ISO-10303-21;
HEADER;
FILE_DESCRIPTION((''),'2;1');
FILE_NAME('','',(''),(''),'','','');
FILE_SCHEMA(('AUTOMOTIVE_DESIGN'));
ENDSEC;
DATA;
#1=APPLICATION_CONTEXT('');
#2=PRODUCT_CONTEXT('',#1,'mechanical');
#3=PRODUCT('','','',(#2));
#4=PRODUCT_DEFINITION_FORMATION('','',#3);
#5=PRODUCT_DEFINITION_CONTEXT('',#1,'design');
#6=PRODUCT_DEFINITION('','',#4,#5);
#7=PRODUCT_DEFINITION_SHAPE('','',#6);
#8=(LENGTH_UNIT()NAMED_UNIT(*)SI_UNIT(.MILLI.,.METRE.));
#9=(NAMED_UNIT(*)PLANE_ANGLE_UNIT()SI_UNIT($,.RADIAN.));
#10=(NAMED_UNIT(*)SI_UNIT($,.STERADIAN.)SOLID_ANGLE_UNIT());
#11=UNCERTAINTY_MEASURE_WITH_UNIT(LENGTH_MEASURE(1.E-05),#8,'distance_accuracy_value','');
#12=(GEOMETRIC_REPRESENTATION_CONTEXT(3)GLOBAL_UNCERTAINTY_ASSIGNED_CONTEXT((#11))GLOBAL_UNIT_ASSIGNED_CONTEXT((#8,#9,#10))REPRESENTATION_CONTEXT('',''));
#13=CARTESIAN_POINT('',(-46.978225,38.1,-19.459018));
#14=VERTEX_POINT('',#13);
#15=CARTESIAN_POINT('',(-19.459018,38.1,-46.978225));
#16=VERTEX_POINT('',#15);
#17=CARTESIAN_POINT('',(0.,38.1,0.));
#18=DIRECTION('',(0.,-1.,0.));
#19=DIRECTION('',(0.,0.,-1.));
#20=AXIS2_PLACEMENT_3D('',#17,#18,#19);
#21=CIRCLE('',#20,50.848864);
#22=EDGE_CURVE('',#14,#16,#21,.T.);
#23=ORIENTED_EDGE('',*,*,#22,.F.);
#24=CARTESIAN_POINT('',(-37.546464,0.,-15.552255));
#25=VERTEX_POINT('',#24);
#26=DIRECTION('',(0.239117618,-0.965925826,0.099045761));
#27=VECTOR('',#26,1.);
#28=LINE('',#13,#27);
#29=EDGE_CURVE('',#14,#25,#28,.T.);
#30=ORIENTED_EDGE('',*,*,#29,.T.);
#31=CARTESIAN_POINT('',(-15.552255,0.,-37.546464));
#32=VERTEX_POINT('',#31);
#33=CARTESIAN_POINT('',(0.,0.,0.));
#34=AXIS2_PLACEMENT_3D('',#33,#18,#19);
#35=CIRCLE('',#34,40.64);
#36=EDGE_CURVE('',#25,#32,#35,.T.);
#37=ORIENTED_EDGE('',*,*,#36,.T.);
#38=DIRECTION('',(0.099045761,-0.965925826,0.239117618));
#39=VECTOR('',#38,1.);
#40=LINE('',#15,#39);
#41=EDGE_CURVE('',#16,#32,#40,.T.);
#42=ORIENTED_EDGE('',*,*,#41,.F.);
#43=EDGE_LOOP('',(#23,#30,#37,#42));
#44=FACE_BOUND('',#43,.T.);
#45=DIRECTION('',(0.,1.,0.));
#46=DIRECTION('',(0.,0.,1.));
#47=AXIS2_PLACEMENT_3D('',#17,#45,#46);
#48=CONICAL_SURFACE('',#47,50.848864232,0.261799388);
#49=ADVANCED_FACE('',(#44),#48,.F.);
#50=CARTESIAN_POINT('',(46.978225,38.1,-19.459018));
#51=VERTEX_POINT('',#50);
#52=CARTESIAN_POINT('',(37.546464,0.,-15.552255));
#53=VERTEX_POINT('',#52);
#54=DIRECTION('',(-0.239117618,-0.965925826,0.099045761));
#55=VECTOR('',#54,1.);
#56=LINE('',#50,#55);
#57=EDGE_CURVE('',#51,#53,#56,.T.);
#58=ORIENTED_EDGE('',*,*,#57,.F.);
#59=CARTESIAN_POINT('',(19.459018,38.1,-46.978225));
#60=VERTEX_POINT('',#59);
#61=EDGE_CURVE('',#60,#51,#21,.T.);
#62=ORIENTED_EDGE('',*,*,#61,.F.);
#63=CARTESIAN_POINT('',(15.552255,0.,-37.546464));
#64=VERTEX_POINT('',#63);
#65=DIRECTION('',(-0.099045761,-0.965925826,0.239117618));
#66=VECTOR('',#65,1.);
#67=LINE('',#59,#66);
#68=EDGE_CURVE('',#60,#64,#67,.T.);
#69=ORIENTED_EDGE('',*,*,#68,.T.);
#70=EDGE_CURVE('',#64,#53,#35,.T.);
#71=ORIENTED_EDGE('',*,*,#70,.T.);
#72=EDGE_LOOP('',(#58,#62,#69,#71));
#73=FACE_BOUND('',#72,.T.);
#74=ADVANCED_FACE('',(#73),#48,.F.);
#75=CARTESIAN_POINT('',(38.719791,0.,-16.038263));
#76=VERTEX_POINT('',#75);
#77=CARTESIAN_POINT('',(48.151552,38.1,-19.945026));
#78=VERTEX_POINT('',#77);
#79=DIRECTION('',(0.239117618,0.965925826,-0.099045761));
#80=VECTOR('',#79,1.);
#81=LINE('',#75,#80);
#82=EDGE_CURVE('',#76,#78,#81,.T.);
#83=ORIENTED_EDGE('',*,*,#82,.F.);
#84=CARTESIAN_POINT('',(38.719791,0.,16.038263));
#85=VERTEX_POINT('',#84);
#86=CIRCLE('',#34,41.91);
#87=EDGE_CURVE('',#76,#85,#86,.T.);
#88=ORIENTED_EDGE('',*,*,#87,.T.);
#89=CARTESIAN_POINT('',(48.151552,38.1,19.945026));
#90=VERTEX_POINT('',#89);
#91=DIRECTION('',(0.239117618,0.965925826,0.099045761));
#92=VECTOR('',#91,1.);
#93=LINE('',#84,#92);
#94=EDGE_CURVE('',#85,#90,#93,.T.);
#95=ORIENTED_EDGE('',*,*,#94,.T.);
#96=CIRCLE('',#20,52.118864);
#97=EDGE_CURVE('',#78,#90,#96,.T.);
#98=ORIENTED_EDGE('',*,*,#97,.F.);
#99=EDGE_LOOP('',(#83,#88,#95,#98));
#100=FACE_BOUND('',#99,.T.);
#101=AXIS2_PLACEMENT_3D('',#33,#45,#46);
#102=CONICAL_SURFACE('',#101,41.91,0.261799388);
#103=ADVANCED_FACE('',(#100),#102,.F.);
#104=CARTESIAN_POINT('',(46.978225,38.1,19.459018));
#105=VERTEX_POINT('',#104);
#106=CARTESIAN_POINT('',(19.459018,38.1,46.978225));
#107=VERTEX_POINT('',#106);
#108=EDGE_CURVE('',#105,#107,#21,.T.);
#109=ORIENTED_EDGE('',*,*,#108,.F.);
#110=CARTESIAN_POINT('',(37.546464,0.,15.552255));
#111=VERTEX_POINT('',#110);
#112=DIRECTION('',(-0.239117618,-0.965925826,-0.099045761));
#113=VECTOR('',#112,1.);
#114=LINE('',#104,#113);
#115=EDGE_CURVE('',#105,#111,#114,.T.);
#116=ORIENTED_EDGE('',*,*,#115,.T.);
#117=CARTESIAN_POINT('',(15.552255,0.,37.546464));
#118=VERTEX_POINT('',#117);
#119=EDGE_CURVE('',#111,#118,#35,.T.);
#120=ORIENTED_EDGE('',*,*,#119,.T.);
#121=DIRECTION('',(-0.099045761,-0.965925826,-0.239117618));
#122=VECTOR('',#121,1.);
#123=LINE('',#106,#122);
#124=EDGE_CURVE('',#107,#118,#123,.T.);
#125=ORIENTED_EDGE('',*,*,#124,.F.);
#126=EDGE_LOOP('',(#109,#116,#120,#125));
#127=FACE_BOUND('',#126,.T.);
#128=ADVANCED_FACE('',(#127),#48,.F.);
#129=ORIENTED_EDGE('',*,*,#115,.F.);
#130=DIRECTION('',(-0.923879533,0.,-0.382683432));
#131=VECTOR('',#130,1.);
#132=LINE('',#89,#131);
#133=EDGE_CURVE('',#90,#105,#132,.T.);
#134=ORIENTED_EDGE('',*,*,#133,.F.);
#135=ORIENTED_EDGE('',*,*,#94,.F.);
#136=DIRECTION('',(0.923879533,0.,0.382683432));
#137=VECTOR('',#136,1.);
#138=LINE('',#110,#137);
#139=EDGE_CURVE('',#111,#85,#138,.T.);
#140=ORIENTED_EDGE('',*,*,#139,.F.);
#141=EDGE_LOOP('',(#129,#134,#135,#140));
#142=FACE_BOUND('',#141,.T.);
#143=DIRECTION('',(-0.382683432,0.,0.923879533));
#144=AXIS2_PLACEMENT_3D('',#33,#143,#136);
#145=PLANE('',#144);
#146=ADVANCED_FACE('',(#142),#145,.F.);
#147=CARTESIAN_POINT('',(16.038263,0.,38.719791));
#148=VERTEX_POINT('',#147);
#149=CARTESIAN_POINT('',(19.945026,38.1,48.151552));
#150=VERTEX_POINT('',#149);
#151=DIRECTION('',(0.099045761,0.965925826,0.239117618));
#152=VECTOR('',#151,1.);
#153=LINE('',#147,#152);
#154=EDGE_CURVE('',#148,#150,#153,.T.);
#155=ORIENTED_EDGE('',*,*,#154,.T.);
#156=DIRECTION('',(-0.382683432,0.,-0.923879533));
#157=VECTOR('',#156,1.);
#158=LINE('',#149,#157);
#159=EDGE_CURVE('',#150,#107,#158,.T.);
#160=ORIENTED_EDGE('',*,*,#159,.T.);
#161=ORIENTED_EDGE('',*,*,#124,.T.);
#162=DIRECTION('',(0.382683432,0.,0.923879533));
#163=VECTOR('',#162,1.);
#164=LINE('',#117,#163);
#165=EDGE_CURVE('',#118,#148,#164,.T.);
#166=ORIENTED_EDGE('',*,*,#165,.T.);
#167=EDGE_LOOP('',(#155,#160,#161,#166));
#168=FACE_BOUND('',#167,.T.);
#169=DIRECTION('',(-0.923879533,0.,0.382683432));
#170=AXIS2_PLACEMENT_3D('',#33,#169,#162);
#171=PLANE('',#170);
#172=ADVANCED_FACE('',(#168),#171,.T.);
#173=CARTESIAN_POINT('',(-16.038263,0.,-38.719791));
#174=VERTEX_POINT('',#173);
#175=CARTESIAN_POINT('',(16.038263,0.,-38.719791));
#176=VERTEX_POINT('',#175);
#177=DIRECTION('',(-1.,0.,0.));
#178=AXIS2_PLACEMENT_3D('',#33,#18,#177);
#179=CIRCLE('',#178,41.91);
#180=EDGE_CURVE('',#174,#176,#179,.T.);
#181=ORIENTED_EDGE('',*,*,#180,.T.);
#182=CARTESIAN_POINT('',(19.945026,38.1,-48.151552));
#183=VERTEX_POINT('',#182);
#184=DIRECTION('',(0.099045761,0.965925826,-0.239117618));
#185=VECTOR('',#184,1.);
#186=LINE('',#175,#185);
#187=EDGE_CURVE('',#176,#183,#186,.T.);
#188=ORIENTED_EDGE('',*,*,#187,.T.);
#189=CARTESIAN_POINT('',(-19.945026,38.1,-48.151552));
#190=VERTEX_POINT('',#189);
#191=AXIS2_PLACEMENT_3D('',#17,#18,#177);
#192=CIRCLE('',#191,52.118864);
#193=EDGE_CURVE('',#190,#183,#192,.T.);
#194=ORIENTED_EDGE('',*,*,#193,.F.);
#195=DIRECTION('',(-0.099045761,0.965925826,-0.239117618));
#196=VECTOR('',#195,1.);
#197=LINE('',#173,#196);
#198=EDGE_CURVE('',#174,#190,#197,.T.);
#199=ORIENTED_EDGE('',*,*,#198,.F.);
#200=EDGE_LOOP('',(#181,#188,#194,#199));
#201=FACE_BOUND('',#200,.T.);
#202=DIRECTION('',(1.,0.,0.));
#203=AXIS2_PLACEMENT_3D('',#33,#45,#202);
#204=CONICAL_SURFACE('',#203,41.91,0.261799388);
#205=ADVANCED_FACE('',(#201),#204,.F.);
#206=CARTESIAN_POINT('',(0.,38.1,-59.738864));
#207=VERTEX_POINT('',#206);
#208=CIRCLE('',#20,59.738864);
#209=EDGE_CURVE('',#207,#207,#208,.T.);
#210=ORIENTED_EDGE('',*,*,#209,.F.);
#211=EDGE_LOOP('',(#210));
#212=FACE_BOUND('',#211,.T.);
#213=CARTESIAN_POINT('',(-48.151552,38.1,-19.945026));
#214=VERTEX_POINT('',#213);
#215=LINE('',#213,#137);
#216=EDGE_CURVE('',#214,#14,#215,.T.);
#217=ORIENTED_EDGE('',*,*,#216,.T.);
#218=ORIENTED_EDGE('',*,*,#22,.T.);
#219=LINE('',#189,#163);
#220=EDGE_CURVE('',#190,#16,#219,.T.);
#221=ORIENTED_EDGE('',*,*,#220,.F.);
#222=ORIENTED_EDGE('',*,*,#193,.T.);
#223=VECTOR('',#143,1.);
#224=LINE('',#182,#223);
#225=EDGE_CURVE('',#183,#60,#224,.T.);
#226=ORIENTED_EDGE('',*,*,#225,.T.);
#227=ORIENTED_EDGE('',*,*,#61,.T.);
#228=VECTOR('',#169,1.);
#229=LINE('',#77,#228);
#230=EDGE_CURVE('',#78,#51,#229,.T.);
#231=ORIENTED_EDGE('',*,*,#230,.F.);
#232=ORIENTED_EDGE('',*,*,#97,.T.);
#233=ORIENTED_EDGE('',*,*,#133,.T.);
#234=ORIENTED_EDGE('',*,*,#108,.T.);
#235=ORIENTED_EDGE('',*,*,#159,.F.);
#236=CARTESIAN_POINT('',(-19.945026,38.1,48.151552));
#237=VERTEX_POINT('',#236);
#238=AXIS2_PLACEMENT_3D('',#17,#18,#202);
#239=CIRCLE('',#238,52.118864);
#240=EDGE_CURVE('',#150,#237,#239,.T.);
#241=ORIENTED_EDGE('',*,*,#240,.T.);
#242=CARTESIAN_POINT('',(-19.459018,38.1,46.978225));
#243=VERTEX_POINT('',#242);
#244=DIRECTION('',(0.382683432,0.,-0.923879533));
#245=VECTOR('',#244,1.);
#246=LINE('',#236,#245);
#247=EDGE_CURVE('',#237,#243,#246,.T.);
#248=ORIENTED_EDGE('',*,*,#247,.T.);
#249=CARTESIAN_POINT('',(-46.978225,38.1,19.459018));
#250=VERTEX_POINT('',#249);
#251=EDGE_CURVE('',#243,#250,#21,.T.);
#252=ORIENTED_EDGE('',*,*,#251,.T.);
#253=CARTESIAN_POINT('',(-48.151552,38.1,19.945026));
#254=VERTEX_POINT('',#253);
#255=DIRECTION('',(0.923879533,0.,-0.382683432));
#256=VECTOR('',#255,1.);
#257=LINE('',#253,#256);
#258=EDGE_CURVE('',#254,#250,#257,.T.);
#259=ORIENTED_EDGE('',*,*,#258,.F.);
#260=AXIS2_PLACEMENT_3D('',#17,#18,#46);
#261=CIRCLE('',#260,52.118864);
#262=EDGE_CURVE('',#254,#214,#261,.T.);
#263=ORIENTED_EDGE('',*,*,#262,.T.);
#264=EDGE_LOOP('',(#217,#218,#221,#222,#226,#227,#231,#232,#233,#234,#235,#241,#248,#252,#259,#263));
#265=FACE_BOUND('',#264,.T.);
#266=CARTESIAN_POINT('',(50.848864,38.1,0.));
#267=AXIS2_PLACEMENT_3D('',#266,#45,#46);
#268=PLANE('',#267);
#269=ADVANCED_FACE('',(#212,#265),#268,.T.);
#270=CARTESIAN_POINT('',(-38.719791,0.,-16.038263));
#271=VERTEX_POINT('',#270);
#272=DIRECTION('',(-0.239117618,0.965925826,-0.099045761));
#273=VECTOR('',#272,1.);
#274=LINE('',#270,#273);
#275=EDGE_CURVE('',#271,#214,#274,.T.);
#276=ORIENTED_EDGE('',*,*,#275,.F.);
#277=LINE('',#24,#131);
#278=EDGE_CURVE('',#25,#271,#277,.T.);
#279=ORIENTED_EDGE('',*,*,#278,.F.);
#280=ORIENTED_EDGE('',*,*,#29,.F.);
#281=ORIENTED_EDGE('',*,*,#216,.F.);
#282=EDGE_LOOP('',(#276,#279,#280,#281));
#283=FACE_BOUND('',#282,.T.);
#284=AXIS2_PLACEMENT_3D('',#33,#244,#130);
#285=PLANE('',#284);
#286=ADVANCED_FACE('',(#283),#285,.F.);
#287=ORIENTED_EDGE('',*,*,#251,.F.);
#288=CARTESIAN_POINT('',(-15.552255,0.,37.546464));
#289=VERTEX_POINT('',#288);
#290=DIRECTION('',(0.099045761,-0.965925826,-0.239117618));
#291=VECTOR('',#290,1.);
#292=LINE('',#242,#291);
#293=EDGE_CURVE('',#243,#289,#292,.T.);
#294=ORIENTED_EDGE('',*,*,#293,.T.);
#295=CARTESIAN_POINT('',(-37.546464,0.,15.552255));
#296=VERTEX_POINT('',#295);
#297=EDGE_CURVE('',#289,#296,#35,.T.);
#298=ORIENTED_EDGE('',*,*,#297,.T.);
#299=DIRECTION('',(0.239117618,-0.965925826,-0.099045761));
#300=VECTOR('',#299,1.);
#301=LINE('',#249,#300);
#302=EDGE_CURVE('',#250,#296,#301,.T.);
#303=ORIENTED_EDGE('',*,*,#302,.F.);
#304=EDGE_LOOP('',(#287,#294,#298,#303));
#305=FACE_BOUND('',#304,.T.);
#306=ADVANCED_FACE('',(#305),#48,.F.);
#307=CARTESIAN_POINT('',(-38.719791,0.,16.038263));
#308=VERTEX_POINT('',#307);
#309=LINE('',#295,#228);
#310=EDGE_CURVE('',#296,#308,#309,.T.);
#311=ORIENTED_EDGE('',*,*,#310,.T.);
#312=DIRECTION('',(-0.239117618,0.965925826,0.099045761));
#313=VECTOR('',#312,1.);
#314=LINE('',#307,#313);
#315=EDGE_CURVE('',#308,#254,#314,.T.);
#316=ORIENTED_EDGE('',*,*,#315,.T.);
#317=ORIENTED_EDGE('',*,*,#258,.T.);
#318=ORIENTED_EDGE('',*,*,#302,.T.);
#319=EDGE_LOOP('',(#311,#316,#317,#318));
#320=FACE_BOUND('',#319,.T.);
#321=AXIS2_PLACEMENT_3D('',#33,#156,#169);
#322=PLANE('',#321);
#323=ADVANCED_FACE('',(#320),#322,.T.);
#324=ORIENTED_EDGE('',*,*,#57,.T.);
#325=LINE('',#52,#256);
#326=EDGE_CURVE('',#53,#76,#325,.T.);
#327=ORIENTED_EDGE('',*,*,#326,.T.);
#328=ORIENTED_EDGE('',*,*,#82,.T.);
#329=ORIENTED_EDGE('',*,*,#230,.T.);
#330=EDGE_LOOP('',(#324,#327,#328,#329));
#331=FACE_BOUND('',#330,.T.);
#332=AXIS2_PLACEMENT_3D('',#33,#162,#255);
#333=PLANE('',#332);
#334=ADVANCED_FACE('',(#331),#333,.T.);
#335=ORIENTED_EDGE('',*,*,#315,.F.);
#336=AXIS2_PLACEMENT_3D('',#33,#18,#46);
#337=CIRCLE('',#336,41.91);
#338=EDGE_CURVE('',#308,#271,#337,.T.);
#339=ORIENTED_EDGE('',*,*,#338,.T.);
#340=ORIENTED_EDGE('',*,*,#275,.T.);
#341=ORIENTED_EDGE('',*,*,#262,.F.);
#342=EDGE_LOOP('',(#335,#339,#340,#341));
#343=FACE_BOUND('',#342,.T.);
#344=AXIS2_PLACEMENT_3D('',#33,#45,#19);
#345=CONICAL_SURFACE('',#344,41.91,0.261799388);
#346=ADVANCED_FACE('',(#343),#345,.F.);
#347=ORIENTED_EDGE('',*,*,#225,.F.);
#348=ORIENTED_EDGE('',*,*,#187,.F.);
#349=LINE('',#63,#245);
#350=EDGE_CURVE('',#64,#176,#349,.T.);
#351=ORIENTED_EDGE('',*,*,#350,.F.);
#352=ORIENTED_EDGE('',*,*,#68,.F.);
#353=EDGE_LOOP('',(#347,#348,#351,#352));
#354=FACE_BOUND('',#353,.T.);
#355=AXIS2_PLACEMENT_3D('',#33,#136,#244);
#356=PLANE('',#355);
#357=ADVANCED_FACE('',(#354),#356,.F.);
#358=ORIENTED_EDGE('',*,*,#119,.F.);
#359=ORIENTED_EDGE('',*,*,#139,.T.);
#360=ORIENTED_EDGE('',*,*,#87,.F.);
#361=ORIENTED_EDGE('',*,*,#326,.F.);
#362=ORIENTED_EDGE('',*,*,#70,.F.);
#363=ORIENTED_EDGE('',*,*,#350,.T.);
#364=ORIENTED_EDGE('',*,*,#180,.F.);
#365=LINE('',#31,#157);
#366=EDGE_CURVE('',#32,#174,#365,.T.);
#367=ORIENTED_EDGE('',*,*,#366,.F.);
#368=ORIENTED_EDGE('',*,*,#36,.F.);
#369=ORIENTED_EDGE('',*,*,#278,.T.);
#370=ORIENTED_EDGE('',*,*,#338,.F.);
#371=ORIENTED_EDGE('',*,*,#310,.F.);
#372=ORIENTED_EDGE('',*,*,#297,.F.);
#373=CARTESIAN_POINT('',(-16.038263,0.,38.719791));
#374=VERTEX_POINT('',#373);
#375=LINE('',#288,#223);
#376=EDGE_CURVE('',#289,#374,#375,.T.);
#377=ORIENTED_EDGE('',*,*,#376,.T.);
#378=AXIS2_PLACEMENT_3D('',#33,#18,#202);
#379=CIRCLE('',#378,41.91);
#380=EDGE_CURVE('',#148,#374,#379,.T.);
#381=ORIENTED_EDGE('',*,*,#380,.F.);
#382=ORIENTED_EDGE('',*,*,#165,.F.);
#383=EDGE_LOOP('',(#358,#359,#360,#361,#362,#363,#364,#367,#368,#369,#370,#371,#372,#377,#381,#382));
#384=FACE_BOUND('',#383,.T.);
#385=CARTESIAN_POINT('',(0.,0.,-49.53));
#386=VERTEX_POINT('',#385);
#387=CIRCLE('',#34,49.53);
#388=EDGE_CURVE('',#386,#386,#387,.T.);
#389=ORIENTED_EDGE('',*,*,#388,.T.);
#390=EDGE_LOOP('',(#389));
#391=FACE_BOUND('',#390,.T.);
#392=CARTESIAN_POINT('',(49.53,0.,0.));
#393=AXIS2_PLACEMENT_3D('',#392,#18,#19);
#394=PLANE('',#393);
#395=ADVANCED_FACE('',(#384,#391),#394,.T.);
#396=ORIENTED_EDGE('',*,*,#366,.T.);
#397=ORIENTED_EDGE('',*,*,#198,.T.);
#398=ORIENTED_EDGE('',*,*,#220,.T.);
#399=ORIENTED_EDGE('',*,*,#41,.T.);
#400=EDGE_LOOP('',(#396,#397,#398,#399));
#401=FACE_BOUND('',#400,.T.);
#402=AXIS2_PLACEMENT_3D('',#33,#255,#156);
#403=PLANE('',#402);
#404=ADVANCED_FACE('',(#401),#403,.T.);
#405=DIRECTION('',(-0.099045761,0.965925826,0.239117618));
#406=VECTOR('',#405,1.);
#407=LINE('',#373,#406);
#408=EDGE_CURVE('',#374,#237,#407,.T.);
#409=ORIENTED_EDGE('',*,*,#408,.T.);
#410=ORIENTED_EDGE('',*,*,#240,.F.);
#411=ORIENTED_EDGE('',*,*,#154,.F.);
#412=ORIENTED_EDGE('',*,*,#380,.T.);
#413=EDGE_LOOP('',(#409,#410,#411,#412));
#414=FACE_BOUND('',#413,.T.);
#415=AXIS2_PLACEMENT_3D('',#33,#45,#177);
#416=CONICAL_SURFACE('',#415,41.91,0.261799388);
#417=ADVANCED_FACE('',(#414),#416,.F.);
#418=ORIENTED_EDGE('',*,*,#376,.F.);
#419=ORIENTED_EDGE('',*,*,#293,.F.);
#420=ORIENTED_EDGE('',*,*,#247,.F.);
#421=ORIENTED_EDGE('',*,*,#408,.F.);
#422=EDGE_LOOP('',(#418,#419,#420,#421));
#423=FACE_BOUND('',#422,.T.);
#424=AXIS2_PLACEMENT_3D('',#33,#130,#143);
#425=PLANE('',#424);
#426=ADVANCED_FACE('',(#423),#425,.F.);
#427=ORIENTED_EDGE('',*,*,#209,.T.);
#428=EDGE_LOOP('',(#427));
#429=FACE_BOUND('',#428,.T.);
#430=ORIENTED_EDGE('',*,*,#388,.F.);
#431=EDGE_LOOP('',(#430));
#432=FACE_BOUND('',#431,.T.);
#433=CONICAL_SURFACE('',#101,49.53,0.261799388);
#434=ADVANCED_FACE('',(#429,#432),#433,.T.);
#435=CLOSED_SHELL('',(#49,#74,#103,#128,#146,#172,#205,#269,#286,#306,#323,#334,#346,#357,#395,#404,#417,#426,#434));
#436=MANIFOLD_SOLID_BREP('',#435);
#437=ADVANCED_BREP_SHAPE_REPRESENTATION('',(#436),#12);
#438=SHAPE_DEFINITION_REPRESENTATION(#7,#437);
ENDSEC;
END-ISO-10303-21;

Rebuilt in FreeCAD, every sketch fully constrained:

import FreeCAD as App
import Part
import Sketcher
from FreeCAD import Vector
Q = App.Units.Quantity

doc = App.newDocument("Part")
body = doc.addObject("PartDesign::Body", "Body")

# Sketch on XY plane
sketch1 = doc.addObject("Sketcher::SketchObject", "Sketch")
body.addObject(sketch1)
sketch1.AttachmentSupport = (doc.XY_Plane, [""])
sketch1.MapMode = "FlatFace"
sketch1.addGeometry(Part.LineSegment(Vector(50.848864, 38.1, 0), Vector(40.64, 0, 0)), False)
sketch1.addGeometry(Part.LineSegment(Vector(40.64, 0, 0), Vector(49.53, 0, 0)), False)
sketch1.addGeometry(Part.LineSegment(Vector(49.53, 0, 0), Vector(59.738864, 38.1, 0)), False)
sketch1.addGeometry(Part.LineSegment(Vector(59.738864, 38.1, 0), Vector(50.848864, 38.1, 0)), False)
sketch1.addConstraint(Sketcher.Constraint("Coincident", 0, 2, 1, 1))
sketch1.addConstraint(Sketcher.Constraint("Coincident", 1, 2, 2, 1))
sketch1.addConstraint(Sketcher.Constraint("Coincident", 2, 2, 3, 1))
sketch1.addConstraint(Sketcher.Constraint("Coincident", 3, 2, 0, 1))
sketch1.addConstraint(Sketcher.Constraint("Horizontal", 1))
sketch1.addConstraint(Sketcher.Constraint("Horizontal", 3))
sketch1.addConstraint(Sketcher.Constraint("PointOnObject", 0, 2, -1))
sketch1.addConstraint(Sketcher.Constraint("Parallel", 0, 2))
sketch1.addConstraint(Sketcher.Constraint("Angle", 0, Q("-105 deg")))
sketch1.addConstraint(Sketcher.Constraint("DistanceX", 1, 1, 1, 2, Q("0.35 in")))
sketch1.addConstraint(Sketcher.Constraint("DistanceX", -1, 1, 0, 2, Q("1.6 in")))
sketch1.addConstraint(Sketcher.Constraint("DistanceY", -1, 1, 2, 2, Q("1.5 in")))
revolution = doc.addObject("PartDesign::Revolution", "Revolution")
body.addObject(revolution)
revolution.Profile = sketch1
revolution.ReferenceAxis = (sketch1, ["V_Axis"])
revolution.Angle = 360

# Sketch on XY plane
sketch2 = doc.addObject("Sketcher::SketchObject", "Sketch001")
body.addObject(sketch2)
sketch2.AttachmentSupport = (doc.XY_Plane, [""])
sketch2.MapMode = "FlatFace"
sketch2.addGeometry(Part.LineSegment(Vector(50.848864, 38.1, 0), Vector(40.64, 0, 0)), False)
sketch2.addGeometry(Part.LineSegment(Vector(40.64, 0, 0), Vector(41.91, 0, 0)), False)
sketch2.addGeometry(Part.LineSegment(Vector(41.91, 0, 0), Vector(52.118864, 38.1, 0)), False)
sketch2.addGeometry(Part.LineSegment(Vector(52.118864, 38.1, 0), Vector(50.848864, 38.1, 0)), False)
sketch2.addConstraint(Sketcher.Constraint("Coincident", 0, 2, 1, 1))
sketch2.addConstraint(Sketcher.Constraint("Coincident", 1, 2, 2, 1))
sketch2.addConstraint(Sketcher.Constraint("Coincident", 2, 2, 3, 1))
sketch2.addConstraint(Sketcher.Constraint("Coincident", 3, 2, 0, 1))
sketch2.addConstraint(Sketcher.Constraint("Horizontal", 1))
sketch2.addConstraint(Sketcher.Constraint("Horizontal", 3))
sketch2.addConstraint(Sketcher.Constraint("PointOnObject", 0, 2, -1))
sketch2.addConstraint(Sketcher.Constraint("Parallel", 0, 2))
sketch2.addConstraint(Sketcher.Constraint("Angle", 0, Q("-105 deg")))
sketch2.addConstraint(Sketcher.Constraint("DistanceX", 1, 1, 1, 2, Q("0.05 in")))
sketch2.addConstraint(Sketcher.Constraint("DistanceX", -1, 1, 0, 2, Q("1.6 in")))
sketch2.addConstraint(Sketcher.Constraint("DistanceY", -1, 1, 2, 2, Q("1.5 in")))
groove = doc.addObject("PartDesign::Groove", "Groove")
body.addObject(groove)
groove.Profile = sketch2
groove.ReferenceAxis = (sketch2, ["V_Axis"])
groove.Angle = 22.5

# Sketch on XY plane
sketch3 = doc.addObject("Sketcher::SketchObject", "Sketch002")
body.addObject(sketch3)
sketch3.AttachmentSupport = (doc.XY_Plane, [""])
sketch3.MapMode = "FlatFace"
sketch3.addGeometry(Part.LineSegment(Vector(50.848864, 38.1, 0), Vector(40.64, 0, 0)), False)
sketch3.addGeometry(Part.LineSegment(Vector(40.64, 0, 0), Vector(41.91, 0, 0)), False)
sketch3.addGeometry(Part.LineSegment(Vector(41.91, 0, 0), Vector(52.118864, 38.1, 0)), False)
sketch3.addGeometry(Part.LineSegment(Vector(52.118864, 38.1, 0), Vector(50.848864, 38.1, 0)), False)
sketch3.addConstraint(Sketcher.Constraint("Coincident", 0, 2, 1, 1))
sketch3.addConstraint(Sketcher.Constraint("Coincident", 1, 2, 2, 1))
sketch3.addConstraint(Sketcher.Constraint("Coincident", 2, 2, 3, 1))
sketch3.addConstraint(Sketcher.Constraint("Coincident", 3, 2, 0, 1))
sketch3.addConstraint(Sketcher.Constraint("Horizontal", 1))
sketch3.addConstraint(Sketcher.Constraint("Horizontal", 3))
sketch3.addConstraint(Sketcher.Constraint("PointOnObject", 0, 2, -1))
sketch3.addConstraint(Sketcher.Constraint("Parallel", 0, 2))
sketch3.addConstraint(Sketcher.Constraint("Angle", 0, Q("-105 deg")))
sketch3.addConstraint(Sketcher.Constraint("DistanceX", 1, 1, 1, 2, Q("0.05 in")))
sketch3.addConstraint(Sketcher.Constraint("DistanceX", -1, 1, 0, 2, Q("1.6 in")))
sketch3.addConstraint(Sketcher.Constraint("DistanceY", -1, 1, 2, 2, Q("1.5 in")))
groove2 = doc.addObject("PartDesign::Groove", "Groove001")
body.addObject(groove2)
groove2.Profile = sketch3
groove2.ReferenceAxis = (sketch3, ["V_Axis"])
groove2.Angle = 22.5
groove2.Reversed = True
doc.recompute()

polarpattern = doc.addObject("PartDesign::PolarPattern", "PolarPattern")
body.addObject(polarpattern)
polarpattern.Originals = [groove, groove2]
polarpattern.Axis = (doc.Y_Axis, [""])
polarpattern.Angle = 360
polarpattern.Occurrences = 4
body.Tip = polarpattern

doc.recompute()
